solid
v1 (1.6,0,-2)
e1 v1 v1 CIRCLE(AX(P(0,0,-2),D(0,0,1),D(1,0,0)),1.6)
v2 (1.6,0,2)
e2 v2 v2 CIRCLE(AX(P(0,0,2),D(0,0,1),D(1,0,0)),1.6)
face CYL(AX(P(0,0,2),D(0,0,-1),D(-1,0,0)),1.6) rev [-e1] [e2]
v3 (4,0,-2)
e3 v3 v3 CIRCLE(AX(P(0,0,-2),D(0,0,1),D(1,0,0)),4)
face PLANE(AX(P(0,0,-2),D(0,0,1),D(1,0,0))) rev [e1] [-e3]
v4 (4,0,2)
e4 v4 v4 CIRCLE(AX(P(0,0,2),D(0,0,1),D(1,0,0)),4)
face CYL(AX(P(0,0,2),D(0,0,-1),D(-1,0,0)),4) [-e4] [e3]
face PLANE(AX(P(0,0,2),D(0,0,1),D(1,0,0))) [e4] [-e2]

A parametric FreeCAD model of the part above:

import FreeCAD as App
import Part
import Sketcher
Q = App.Units.Quantity

doc = App.newDocument("Part")
body = doc.addObject("PartDesign::Body", "Body")

sketch1 = body.newObject("Sketcher::SketchObject", "Sketch")
sketch1.AttachmentSupport = (doc.getObject("XY_Plane"), [""])
sketch1.MapMode = "FlatFace"
sketch1.addGeometry([
    Part.Circle(App.Vector(0, 0, 0), App.Vector(0, 0, 1), 4),
    Part.Circle(App.Vector(0, 0, 0), App.Vector(0, 0, 1), 1.6),
], False)
sketch1.addConstraint([
    Sketcher.Constraint("Coincident", 0, 3, -1, 1),
    Sketcher.Constraint("Coincident", 1, 3, -1, 1),
    Sketcher.Constraint("Diameter", 0, Q("8 mm")),
    Sketcher.Constraint("Diameter", 1, Q("3.2 mm")),
])
pad1 = body.newObject("PartDesign::Pad", "Pad")
pad1.Profile = sketch1
pad1.Type = "TwoLengths"
pad1.Length = 2
pad1.Length2 = 2

doc.recompute()
